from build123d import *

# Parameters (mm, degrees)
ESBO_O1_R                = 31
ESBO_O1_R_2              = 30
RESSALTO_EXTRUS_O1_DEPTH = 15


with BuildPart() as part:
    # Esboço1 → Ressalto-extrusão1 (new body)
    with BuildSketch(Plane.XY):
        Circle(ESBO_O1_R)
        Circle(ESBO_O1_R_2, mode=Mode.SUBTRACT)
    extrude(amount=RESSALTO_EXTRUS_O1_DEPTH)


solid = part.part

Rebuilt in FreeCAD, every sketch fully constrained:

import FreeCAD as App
import Part
import Sketcher

V = App.Vector

doc = App.newDocument("Part")
body = doc.addObject("PartDesign::Body", "Body")

sketch1 = body.newObject("Sketcher::SketchObject", "Sketch")
sketch1.AttachmentSupport = (doc.getObject("XY_Plane"), [""])
sketch1.MapMode = "FlatFace"
sketch1.addGeometry([
    Part.Circle(V(0, 0, 0), V(0, 0, 1), 31),
    Part.Circle(V(0, 0, 0), V(0, 0, 1), 30),
], False)
sketch1.addConstraint([
    Sketcher.Constraint("Coincident", 0, 3, -1, 1),
    Sketcher.Constraint("Coincident", 1, 3, -1, 1),
    Sketcher.Constraint("Diameter", 0, 62.0),
    Sketcher.Constraint("Diameter", 1, 60.0),
])
pad1 = body.newObject("PartDesign::Pad", "Pad")
pad1.Profile = sketch1
pad1.Length = 15

doc.recompute()
